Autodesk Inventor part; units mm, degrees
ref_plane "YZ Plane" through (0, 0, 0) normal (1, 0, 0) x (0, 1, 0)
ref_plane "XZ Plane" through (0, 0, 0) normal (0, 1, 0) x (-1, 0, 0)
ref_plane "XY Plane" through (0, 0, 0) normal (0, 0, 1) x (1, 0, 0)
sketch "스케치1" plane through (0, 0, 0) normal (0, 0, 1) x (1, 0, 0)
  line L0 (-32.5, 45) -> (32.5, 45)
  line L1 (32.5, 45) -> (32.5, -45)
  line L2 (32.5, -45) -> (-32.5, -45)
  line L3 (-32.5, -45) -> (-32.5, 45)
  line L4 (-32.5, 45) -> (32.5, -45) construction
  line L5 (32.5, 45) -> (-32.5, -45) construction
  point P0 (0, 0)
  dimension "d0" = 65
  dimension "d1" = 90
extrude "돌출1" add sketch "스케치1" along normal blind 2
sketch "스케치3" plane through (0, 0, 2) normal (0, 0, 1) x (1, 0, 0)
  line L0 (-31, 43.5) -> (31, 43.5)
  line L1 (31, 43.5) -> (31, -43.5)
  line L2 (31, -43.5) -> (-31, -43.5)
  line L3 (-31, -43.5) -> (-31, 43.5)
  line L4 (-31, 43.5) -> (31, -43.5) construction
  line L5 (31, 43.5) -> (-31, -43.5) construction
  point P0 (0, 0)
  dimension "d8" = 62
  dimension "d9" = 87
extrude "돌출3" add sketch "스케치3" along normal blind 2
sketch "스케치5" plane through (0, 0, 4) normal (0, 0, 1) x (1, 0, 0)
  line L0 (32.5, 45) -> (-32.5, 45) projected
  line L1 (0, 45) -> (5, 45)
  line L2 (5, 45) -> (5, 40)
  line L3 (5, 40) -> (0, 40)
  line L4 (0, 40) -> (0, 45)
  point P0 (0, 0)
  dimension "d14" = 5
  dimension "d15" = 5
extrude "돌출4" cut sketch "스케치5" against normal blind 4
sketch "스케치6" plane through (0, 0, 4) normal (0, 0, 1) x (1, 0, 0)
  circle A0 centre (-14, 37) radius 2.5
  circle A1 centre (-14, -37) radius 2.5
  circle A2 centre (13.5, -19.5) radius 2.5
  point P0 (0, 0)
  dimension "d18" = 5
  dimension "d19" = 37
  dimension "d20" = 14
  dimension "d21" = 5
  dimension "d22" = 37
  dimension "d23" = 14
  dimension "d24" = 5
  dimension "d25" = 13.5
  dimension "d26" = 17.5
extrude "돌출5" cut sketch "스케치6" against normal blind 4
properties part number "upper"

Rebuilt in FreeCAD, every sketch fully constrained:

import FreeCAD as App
import Part
import Sketcher

doc = App.newDocument("Part")
body = doc.addObject("PartDesign::Body", "Body")

# Sketch on XY plane
sketch1 = body.newObject("Sketcher::SketchObject", "Sketch")
sketch1.AttachmentSupport = (doc.getObject("XY_Plane"), [""])
sketch1.MapMode = "FlatFace"
sketch1.addGeometry(Part.LineSegment(App.Vector(32.5, 45, 0), App.Vector(-32.5, 45, 0)), False)
sketch1.addGeometry(Part.LineSegment(App.Vector(-32.5, 45, 0), App.Vector(-32.5, -45, 0)), False)
sketch1.addGeometry(Part.LineSegment(App.Vector(-32.5, -45, 0), App.Vector(32.5, -45, 0)), False)
sketch1.addGeometry(Part.LineSegment(App.Vector(32.5, -45, 0), App.Vector(32.5, 45, 0)), False)
sketch1.addConstraint(Sketcher.Constraint("Coincident", 0, 2, 1, 1))
sketch1.addConstraint(Sketcher.Constraint("Coincident", 1, 2, 2, 1))
sketch1.addConstraint(Sketcher.Constraint("Coincident", 2, 2, 3, 1))
sketch1.addConstraint(Sketcher.Constraint("Coincident", 3, 2, 0, 1))
sketch1.addConstraint(Sketcher.Constraint("Horizontal", 0))
sketch1.addConstraint(Sketcher.Constraint("Vertical", 1))
sketch1.addConstraint(Sketcher.Constraint("Horizontal", 2))
sketch1.addConstraint(Sketcher.Constraint("Vertical", 3))
sketch1.addConstraint(Sketcher.Constraint("Symmetric", 0, 2, 2, 2, -1, 1))
sketch1.addConstraint(Sketcher.Constraint("DistanceX", 0, 2, 0, 1, 65.0))
sketch1.addConstraint(Sketcher.Constraint("DistanceY", 1, 2, 1, 1, 90.0))
pad1 = body.newObject("PartDesign::Pad", "Pad")
pad1.Profile = sketch1
pad1.Length = 2

# Sketch on XY plane
sketch2 = body.newObject("Sketcher::SketchObject", "Sketch001")
sketch2.AttachmentSupport = (doc.getObject("XY_Plane"), [""])
sketch2.MapMode = "FlatFace"
sketch2.AttachmentOffset = App.Placement(App.Vector(0, 0, 2), App.Rotation())
sketch2.addGeometry(Part.LineSegment(App.Vector(31, 43.5, 0), App.Vector(-31, 43.5, 0)), False)
sketch2.addGeometry(Part.LineSegment(App.Vector(-31, 43.5, 0), App.Vector(-31, -43.5, 0)), False)
sketch2.addGeometry(Part.LineSegment(App.Vector(-31, -43.5, 0), App.Vector(31, -43.5, 0)), False)
sketch2.addGeometry(Part.LineSegment(App.Vector(31, -43.5, 0), App.Vector(31, 43.5, 0)), False)
sketch2.addConstraint(Sketcher.Constraint("Coincident", 0, 2, 1, 1))
sketch2.addConstraint(Sketcher.Constraint("Coincident", 1, 2, 2, 1))
sketch2.addConstraint(Sketcher.Constraint("Coincident", 2, 2, 3, 1))
sketch2.addConstraint(Sketcher.Constraint("Coincident", 3, 2, 0, 1))
sketch2.addConstraint(Sketcher.Constraint("Horizontal", 0))
sketch2.addConstraint(Sketcher.Constraint("Vertical", 1))
sketch2.addConstraint(Sketcher.Constraint("Horizontal", 2))
sketch2.addConstraint(Sketcher.Constraint("Vertical", 3))
sketch2.addConstraint(Sketcher.Constraint("Symmetric", 0, 2, 2, 2, -1, 1))
sketch2.addConstraint(Sketcher.Constraint("DistanceX", 0, 2, 0, 1, 62.0))
sketch2.addConstraint(Sketcher.Constraint("DistanceY", 1, 2, 1, 1, 87.0))
pad2 = body.newObject("PartDesign::Pad", "Pad001")
pad2.Profile = sketch2
pad2.Length = 2

# Sketch on XY plane
sketch3 = body.newObject("Sketcher::SketchObject", "Sketch002")
sketch3.AttachmentSupport = (doc.getObject("XY_Plane"), [""])
sketch3.MapMode = "FlatFace"
sketch3.AttachmentOffset = App.Placement(App.Vector(0, 0, 4), App.Rotation())
sketch3.addGeometry(Part.LineSegment(App.Vector(5, 40, 0), App.Vector(5, 45, 0)), False)
sketch3.addGeometry(Part.LineSegment(App.Vector(5, 45, 0), App.Vector(0, 45, 0)), False)
sketch3.addGeometry(Part.LineSegment(App.Vector(0, 45, 0), App.Vector(0, 40, 0)), False)
sketch3.addGeometry(Part.LineSegment(App.Vector(0, 40, 0), App.Vector(5, 40, 0)), False)
sketch3.addConstraint(Sketcher.Constraint("Coincident", 0, 2, 1, 1))
sketch3.addConstraint(Sketcher.Constraint("Coincident", 1, 2, 2, 1))
sketch3.addConstraint(Sketcher.Constraint("Coincident", 2, 2, 3, 1))
sketch3.addConstraint(Sketcher.Constraint("Coincident", 3, 2, 0, 1))
sketch3.addConstraint(Sketcher.Constraint("Vertical", 0))
sketch3.addConstraint(Sketcher.Constraint("Horizontal", 1))
sketch3.addConstraint(Sketcher.Constraint("Vertical", 2))
sketch3.addConstraint(Sketcher.Constraint("Horizontal", 3))
sketch3.addConstraint(Sketcher.Constraint("PointOnObject", 1, 2, -2))
sketch3.addConstraint(Sketcher.Constraint("Equal", 3, 0))
sketch3.addConstraint(Sketcher.Constraint("DistanceX", 1, 2, 1, 1, 5.0))
sketch3.addConstraint(Sketcher.Constraint("DistanceY", -1, 1, 0, 2, 45.0))
pocket1 = body.newObject("PartDesign::Pocket", "Pocket")
pocket1.Profile = sketch3
pocket1.Length = 4

# Sketch on XY plane
sketch4 = body.newObject("Sketcher::SketchObject", "Sketch003")
sketch4.AttachmentSupport = (doc.getObject("XY_Plane"), [""])
sketch4.MapMode = "FlatFace"
sketch4.AttachmentOffset = App.Placement(App.Vector(0, 0, 4), App.Rotation())
sketch4.addGeometry(Part.Circle(App.Vector(-14, 37, 0), App.Vector(0, 0, 1), 2.5), False)
sketch4.addGeometry(Part.Circle(App.Vector(-14, -37, 0), App.Vector(0, 0, 1), 2.5), False)
sketch4.addGeometry(Part.Circle(App.Vector(13.5, -19.5, 0), App.Vector(0, 0, 1), 2.5), False)
sketch4.addConstraint(Sketcher.Constraint("Equal", 0, 1))
sketch4.addConstraint(Sketcher.Constraint("Equal", 1, 2))
sketch4.addConstraint(Sketcher.Constraint("Symmetric", 0, 3, 1, 3, -1))
sketch4.addConstraint(Sketcher.Constraint("Diameter", 0, 5.0))
sketch4.addConstraint(Sketcher.Constraint("DistanceX", 0, 3, -1, 1, 14.0))
sketch4.addConstraint(Sketcher.Constraint("DistanceY", -1, 1, 0, 3, 37.0))
sketch4.addConstraint(Sketcher.Constraint("DistanceX", -1, 1, 2, 3, 13.5))
sketch4.addConstraint(Sketcher.Constraint("DistanceY", 1, 3, 2, 3, 17.5))
pocket2 = body.newObject("PartDesign::Pocket", "Pocket001")
pocket2.Profile = sketch4
pocket2.Length = 4

doc.recompute()
